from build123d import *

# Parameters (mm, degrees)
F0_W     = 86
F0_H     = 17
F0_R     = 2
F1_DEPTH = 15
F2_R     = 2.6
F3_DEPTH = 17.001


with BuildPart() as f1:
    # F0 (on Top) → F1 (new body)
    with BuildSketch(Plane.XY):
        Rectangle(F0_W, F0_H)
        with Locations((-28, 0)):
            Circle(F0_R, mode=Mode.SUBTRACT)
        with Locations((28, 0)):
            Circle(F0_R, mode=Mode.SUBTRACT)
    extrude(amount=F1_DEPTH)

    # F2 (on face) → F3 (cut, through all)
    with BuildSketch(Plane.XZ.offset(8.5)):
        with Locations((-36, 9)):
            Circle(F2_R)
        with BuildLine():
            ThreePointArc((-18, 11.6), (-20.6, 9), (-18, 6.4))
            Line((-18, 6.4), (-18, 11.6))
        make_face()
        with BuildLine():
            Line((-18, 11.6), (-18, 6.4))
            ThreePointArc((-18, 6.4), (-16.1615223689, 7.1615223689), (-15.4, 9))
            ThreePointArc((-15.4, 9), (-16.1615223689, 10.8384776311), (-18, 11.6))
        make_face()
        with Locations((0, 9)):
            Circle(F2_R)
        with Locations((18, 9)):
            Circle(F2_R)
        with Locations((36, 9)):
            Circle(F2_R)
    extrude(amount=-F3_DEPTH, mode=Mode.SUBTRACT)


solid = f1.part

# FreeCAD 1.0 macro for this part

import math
import FreeCAD as App
import Part
import Sketcher
Q = App.Units.Quantity

doc = App.newDocument("Part")
body = doc.addObject("PartDesign::Body", "Body")

sketch1 = doc.addObject("Sketcher::SketchObject", "Sketch")
body.addObject(sketch1)
sketch1.AttachmentSupport = (doc.XY_Plane, [""])
sketch1.MapMode = "FlatFace"
sketch1.addGeometry([
    Part.LineSegment(App.Vector(-43, 8.5, 0), App.Vector(-43, -8.5, 0)),
    Part.LineSegment(App.Vector(-43, -8.5, 0), App.Vector(43, -8.5, 0)),
    Part.LineSegment(App.Vector(43, -8.5, 0), App.Vector(43, 8.5, 0)),
    Part.LineSegment(App.Vector(43, 8.5, 0), App.Vector(-43, 8.5, 0)),
    Part.Circle(App.Vector(-28, 0, 0), App.Vector(0, 0, 1), 2),
    Part.Circle(App.Vector(28, 0, 0), App.Vector(0, 0, 1), 2),
], False)
sketch1.addConstraint([
    Sketcher.Constraint("Coincident", 0, 2, 1, 1),
    Sketcher.Constraint("Coincident", 1, 2, 2, 1),
    Sketcher.Constraint("Coincident", 2, 2, 3, 1),
    Sketcher.Constraint("Coincident", 3, 2, 0, 1),
    Sketcher.Constraint("Vertical", 0),
    Sketcher.Constraint("Horizontal", 1),
    Sketcher.Constraint("Vertical", 2),
    Sketcher.Constraint("Horizontal", 3),
    Sketcher.Constraint("Equal", 4, 5),
    Sketcher.Constraint("Symmetric", 4, 3, 5, 3, -1, 1),
    Sketcher.Constraint("Symmetric", 0, 2, 2, 2, -1, 1),
    Sketcher.Constraint("PointOnObject", 4, 3, -1),
    Sketcher.Constraint("Diameter", 4, Q("4 mm")),
    Sketcher.Constraint("DistanceX", 1, 1, 1, 2, Q("86 mm")),
    Sketcher.Constraint("DistanceY", 0, 2, 0, 1, Q("17 mm")),
    Sketcher.Constraint("DistanceX", 4, 3, -1, 1, Q("28 mm")),
])
pad1 = doc.addObject("PartDesign::Pad", "Pad")
body.addObject(pad1)
pad1.Profile = sketch1
pad1.Length = 15

sketch2 = doc.addObject("Sketcher::SketchObject", "Sketch001")
body.addObject(sketch2)
sketch2.AttachmentSupport = (doc.XZ_Plane, [""])
sketch2.MapMode = "FlatFace"
sketch2.AttachmentOffset = App.Placement(App.Vector(0, 0, 8.5), App.Rotation())
sketch2.addGeometry([
    Part.Circle(App.Vector(-36, 9, 0), App.Vector(0, 0, 1), 2.6),
    Part.ArcOfCircle(Part.Circle(App.Vector(-18, 9, 0), App.Vector(0, 0, 1), 2.6), math.radians(90), math.radians(270)),
    Part.ArcOfCircle(Part.Circle(App.Vector(-18, 9, 0), App.Vector(0, 0, 1), 2.6), math.radians(-90), math.radians(0)),
    Part.ArcOfCircle(Part.Circle(App.Vector(-18, 9, 0), App.Vector(0, 0, 1), 2.6), math.radians(0), math.radians(90)),
    Part.Circle(App.Vector(0, 9, 0), App.Vector(0, 0, 1), 2.6),
    Part.Circle(App.Vector(18, 9, 0), App.Vector(0, 0, 1), 2.6),
    Part.Circle(App.Vector(36, 9, 0), App.Vector(0, 0, 1), 2.6),
], False)
sketch2.addConstraint([
    Sketcher.Constraint("Tangent", 1, 2, 2, 1),
    Sketcher.Constraint("Tangent", 2, 2, 3, 1),
    Sketcher.Constraint("Tangent", 3, 2, 1, 1),
    Sketcher.Constraint("Equal", 0, 1),
    Sketcher.Constraint("Equal", 3, 4),
    Sketcher.Constraint("Equal", 4, 5),
    Sketcher.Constraint("Equal", 5, 6),
    Sketcher.Constraint("Symmetric", 1, 3, 5, 3, -2),
    Sketcher.Constraint("Symmetric", 0, 3, 6, 3, -2),
    Sketcher.Constraint("PointOnObject", 4, 3, -2),
    Sketcher.Constraint("Horizontal", 0, 3, 1, 3),
    Sketcher.Constraint("Horizontal", 3, 3, 4, 3),
    Sketcher.Constraint("Horizontal", 6, 3, 2, 2),
    Sketcher.Constraint("Vertical", 3, 3, 1, 2),
    Sketcher.Constraint("Vertical", 1, 2, 3, 2),
    Sketcher.Constraint("Diameter", 0, Q("5.2 mm")),
    Sketcher.Constraint("DistanceX", 0, 3, -1, 1, Q("36 mm")),
    Sketcher.Constraint("DistanceY", -1, 1, 0, 3, Q("9 mm")),
    Sketcher.Constraint("DistanceX", 1, 3, -1, 1, Q("18 mm")),
])
pocket1 = doc.addObject("PartDesign::Pocket", "Pocket")
body.addObject(pocket1)
pocket1.Profile = sketch2
pocket1.Type = "ThroughAll"

doc.recompute()
